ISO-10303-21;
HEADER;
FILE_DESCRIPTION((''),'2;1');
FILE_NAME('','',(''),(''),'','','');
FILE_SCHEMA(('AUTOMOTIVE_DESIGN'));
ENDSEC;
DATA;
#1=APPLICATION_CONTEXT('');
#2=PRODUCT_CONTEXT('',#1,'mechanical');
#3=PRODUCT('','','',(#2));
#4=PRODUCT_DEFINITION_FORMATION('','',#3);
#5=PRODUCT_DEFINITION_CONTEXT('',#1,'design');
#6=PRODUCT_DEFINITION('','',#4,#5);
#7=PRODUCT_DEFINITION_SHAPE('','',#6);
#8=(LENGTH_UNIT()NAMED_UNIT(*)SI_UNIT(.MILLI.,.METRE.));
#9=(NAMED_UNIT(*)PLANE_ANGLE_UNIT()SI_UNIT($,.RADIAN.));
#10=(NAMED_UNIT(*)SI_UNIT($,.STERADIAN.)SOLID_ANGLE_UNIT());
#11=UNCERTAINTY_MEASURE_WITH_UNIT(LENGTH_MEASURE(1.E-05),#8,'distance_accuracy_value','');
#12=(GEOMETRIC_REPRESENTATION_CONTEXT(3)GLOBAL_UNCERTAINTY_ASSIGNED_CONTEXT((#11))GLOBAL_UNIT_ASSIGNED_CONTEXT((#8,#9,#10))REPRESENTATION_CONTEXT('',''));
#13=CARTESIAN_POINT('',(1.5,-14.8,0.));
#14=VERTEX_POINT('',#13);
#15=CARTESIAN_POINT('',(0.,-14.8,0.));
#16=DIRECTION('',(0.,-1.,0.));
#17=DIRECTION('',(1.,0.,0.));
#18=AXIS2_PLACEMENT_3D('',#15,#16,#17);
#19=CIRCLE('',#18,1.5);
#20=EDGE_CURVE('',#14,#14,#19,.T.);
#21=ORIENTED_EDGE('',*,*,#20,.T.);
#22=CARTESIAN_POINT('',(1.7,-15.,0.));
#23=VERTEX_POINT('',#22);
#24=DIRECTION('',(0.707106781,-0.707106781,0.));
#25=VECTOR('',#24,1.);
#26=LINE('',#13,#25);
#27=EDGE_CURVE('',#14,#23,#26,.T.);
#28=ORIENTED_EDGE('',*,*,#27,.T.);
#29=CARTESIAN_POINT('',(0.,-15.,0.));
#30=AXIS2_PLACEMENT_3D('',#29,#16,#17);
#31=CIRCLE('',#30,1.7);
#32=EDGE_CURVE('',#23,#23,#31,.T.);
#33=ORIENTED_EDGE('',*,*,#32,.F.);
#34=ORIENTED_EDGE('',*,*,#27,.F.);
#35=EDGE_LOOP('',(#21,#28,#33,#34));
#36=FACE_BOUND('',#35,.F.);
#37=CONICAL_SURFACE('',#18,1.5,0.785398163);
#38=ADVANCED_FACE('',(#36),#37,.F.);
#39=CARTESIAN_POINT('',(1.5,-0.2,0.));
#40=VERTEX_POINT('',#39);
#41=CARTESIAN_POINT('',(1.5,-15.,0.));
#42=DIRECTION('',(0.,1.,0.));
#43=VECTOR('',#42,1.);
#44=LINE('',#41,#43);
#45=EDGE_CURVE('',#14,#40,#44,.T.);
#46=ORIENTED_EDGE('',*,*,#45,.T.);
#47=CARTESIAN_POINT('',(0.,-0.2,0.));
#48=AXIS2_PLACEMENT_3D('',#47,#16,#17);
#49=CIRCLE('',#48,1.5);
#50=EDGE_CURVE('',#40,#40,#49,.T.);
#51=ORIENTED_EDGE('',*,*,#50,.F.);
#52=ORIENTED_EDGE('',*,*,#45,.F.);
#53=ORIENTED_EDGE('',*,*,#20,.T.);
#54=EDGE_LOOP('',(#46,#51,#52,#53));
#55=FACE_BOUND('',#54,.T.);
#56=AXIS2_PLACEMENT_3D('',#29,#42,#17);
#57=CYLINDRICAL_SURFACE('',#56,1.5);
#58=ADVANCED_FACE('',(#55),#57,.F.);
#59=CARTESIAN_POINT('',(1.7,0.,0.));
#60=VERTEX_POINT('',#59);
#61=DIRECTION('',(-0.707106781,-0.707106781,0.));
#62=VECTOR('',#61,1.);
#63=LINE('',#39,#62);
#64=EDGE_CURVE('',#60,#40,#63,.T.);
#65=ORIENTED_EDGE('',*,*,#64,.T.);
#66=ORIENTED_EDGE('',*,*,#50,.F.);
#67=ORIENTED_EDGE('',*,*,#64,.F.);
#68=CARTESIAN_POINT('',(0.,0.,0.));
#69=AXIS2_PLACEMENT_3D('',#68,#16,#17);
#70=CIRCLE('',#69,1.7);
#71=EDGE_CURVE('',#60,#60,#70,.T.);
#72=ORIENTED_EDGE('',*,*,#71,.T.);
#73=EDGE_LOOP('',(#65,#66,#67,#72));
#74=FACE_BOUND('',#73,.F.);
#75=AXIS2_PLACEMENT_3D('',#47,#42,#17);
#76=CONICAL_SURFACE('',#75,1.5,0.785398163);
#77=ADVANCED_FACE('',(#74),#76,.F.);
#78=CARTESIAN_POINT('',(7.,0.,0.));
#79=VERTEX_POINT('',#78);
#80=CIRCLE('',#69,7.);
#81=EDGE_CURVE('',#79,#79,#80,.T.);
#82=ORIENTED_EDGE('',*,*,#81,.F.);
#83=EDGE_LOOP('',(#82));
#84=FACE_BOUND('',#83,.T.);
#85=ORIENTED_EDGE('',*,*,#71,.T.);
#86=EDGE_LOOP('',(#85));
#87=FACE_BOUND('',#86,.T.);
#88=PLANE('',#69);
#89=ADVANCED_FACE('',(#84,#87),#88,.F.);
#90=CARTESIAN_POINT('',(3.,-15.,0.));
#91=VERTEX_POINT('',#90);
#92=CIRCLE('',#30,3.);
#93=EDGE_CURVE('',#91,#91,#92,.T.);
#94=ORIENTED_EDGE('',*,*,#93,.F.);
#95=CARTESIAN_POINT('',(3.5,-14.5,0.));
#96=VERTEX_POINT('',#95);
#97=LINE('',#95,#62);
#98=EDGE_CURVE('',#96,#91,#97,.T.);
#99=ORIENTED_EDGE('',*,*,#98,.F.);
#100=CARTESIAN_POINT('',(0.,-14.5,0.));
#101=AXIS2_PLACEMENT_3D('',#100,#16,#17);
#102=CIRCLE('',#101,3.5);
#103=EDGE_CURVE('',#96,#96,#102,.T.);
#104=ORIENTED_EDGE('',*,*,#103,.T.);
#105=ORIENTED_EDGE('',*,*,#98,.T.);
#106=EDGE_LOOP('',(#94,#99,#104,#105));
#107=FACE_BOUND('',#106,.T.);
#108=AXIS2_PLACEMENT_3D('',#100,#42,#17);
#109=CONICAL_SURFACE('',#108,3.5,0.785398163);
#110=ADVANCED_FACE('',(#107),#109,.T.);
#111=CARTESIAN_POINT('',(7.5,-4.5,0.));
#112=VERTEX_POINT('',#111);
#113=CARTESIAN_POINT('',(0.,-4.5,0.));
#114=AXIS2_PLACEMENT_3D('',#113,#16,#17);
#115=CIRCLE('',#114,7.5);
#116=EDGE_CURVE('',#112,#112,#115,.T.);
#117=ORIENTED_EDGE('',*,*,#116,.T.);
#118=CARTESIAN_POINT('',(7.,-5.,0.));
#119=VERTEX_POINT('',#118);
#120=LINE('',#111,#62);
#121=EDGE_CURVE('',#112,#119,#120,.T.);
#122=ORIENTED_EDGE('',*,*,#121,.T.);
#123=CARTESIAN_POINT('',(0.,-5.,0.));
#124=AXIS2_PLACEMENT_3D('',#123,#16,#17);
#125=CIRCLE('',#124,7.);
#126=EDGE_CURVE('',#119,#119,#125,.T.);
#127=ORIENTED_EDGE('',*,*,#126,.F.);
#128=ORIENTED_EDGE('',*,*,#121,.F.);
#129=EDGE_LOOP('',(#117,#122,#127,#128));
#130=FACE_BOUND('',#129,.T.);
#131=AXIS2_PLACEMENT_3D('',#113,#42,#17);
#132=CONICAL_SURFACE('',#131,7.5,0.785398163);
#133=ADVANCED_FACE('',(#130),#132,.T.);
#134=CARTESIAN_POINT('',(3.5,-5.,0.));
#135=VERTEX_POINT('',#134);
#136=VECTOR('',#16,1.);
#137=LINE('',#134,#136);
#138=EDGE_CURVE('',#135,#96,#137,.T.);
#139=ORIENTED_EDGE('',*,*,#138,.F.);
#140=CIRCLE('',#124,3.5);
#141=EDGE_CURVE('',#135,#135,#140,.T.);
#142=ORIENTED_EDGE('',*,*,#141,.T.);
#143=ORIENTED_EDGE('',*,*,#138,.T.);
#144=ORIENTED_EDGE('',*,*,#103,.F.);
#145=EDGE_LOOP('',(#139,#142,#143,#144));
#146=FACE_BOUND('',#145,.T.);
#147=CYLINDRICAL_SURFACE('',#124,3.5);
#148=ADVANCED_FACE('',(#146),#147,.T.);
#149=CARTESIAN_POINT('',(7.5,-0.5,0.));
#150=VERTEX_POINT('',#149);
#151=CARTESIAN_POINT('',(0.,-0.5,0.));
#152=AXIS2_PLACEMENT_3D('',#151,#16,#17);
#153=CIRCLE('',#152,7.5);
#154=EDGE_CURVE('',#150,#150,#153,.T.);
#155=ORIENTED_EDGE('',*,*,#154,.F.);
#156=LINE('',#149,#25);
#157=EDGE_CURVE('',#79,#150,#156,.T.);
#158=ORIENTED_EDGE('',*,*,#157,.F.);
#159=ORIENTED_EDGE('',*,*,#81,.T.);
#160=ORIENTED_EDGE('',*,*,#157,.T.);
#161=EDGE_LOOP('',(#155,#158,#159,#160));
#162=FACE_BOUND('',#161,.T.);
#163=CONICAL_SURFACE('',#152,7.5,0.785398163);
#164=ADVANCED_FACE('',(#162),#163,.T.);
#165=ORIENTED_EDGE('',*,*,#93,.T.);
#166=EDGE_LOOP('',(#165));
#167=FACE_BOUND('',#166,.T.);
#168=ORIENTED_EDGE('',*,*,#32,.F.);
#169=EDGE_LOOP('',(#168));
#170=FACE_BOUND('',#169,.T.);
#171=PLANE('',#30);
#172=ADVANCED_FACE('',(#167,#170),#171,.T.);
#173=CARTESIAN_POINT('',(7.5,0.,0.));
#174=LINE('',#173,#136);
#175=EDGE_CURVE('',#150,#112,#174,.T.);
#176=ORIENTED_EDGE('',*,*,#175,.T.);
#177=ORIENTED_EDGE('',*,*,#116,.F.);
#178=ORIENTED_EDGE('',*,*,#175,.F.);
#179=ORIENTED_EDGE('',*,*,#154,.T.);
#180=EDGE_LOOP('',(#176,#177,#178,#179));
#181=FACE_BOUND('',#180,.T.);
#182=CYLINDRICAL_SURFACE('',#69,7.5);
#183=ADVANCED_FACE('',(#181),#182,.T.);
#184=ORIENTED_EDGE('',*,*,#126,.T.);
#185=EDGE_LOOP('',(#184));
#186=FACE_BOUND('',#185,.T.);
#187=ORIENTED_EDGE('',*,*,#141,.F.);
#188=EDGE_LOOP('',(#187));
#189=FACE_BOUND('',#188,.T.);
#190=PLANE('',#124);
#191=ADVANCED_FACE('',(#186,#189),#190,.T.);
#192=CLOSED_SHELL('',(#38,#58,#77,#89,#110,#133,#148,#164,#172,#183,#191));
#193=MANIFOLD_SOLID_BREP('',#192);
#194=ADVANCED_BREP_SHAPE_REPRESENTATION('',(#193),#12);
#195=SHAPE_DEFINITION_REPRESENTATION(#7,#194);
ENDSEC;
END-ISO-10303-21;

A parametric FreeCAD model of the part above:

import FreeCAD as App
import Part
import Sketcher
Q = App.Units.Quantity


def edges_at(feature, points):
    """Names of the edges that pass closest to the given points."""
    edges = feature.Shape.Edges
    near = lambda p: min(range(len(edges)), key=lambda i: edges[i].distToShape(Part.Vertex(*p))[0])
    return sorted({f"Edge{near(p) + 1}" for p in points})

doc = App.newDocument("Part")
body = doc.addObject("PartDesign::Body", "Body")

sketch1 = doc.addObject("Sketcher::SketchObject", "Sketch")
body.addObject(sketch1)
sketch1.AttachmentSupport = (doc.XY_Plane, [""])
sketch1.MapMode = "FlatFace"
sketch1.addGeometry([
    Part.LineSegment(App.Vector(7.5, 0, 0), App.Vector(1.5, 0, 0)),
    Part.LineSegment(App.Vector(1.5, 0, 0), App.Vector(1.5, -15, 0)),
    Part.LineSegment(App.Vector(1.5, -15, 0), App.Vector(3.5, -15, 0)),
    Part.LineSegment(App.Vector(3.5, -15, 0), App.Vector(3.5, -5, 0)),
    Part.LineSegment(App.Vector(3.5, -5, 0), App.Vector(7.5, -5, 0)),
    Part.LineSegment(App.Vector(7.5, -5, 0), App.Vector(7.5, 0, 0)),
], False)
sketch1.addConstraint([
    Sketcher.Constraint("Coincident", 0, 2, 1, 1),
    Sketcher.Constraint("Coincident", 1, 2, 2, 1),
    Sketcher.Constraint("Coincident", 2, 2, 3, 1),
    Sketcher.Constraint("Coincident", 3, 2, 4, 1),
    Sketcher.Constraint("Coincident", 4, 2, 5, 1),
    Sketcher.Constraint("Coincident", 5, 2, 0, 1),
    Sketcher.Constraint("Horizontal", 0),
    Sketcher.Constraint("Vertical", 1),
    Sketcher.Constraint("Horizontal", 2),
    Sketcher.Constraint("Vertical", 3),
    Sketcher.Constraint("Horizontal", 4),
    Sketcher.Constraint("Vertical", 5),
    Sketcher.Constraint("PointOnObject", 0, 2, -1),
    Sketcher.Constraint("DistanceY", 1, 2, 1, 1, Q("15 mm")),
    Sketcher.Constraint("DistanceY", 3, 1, 3, 2, Q("10 mm")),
    Sketcher.Constraint("DistanceX", -1, 1, 0, 2, Q("1.5 mm")),
    Sketcher.Constraint("DistanceX", -1, 1, 2, 2, Q("3.5 mm")),
    Sketcher.Constraint("DistanceX", -1, 1, 4, 2, Q("7.5 mm")),
])
revolution = doc.addObject("PartDesign::Revolution", "Revolution")
body.addObject(revolution)
revolution.Profile = sketch1
revolution.ReferenceAxis = (sketch1, ["V_Axis"])
revolution.Angle = 360
doc.recompute()

chamfer = doc.addObject("PartDesign::Chamfer", "Chamfer")
body.addObject(chamfer)
chamfer.Base = (revolution, edges_at(revolution, [(-7.5, 0, 0), (-7.5, -5, 0), (-3.5, -15, 0)]))
chamfer.Size = 0.5
doc.recompute()

chamfer2 = doc.addObject("PartDesign::Chamfer", "Chamfer001")
body.addObject(chamfer2)
chamfer2.Base = (chamfer, edges_at(chamfer, [(-1.5, 0, 0), (-1.5, -15, 0)]))
chamfer2.Size = 0.2

doc.recompute()
